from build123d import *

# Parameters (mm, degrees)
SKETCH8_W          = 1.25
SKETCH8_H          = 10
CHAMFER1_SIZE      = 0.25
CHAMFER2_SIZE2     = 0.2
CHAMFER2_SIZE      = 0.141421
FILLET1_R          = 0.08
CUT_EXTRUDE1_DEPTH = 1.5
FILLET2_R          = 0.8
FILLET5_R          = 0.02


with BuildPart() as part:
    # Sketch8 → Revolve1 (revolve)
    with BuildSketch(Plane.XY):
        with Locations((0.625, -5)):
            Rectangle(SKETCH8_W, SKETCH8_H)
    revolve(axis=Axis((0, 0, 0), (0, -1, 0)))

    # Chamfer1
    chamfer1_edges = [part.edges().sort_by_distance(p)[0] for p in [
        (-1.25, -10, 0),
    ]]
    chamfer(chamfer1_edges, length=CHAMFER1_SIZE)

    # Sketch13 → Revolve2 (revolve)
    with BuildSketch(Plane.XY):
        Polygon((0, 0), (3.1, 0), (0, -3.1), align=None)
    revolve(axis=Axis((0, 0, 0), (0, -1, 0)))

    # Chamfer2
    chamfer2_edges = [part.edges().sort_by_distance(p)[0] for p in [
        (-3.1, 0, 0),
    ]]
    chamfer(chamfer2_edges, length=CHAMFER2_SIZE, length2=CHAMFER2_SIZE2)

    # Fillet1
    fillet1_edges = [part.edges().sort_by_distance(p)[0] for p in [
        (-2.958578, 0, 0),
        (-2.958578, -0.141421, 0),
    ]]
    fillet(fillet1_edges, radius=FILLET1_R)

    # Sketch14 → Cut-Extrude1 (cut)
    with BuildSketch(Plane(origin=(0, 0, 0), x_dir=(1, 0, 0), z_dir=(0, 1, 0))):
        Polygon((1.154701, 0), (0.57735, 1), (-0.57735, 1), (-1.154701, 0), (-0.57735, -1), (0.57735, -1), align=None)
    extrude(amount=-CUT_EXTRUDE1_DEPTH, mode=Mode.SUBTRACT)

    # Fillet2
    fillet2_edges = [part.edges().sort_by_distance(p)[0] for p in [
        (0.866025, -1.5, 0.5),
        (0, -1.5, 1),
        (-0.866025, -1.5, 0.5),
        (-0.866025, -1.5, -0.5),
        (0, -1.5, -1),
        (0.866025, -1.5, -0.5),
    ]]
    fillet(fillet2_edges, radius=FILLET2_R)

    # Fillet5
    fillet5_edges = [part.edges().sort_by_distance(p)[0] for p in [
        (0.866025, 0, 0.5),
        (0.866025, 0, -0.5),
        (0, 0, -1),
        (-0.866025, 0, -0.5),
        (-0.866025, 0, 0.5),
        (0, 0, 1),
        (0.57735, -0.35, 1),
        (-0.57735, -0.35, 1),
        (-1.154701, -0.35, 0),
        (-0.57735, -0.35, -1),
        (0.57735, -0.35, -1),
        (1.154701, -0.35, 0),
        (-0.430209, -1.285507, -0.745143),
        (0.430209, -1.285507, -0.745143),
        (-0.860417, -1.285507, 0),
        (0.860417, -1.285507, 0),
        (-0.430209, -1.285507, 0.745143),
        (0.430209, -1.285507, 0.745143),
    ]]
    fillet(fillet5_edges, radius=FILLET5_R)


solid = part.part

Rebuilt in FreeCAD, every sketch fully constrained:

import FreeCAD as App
import Part
import Sketcher

V = App.Vector


def edges_at(feature, points):
    """Names of the edges that pass closest to the given points."""
    edges = feature.Shape.Edges
    near = lambda p: min(range(len(edges)), key=lambda i: edges[i].distToShape(Part.Vertex(*p))[0])
    return sorted({f"Edge{near(p) + 1}" for p in points})

doc = App.newDocument("Part")
body = doc.addObject("PartDesign::Body", "Body")

sketch1 = doc.addObject("Sketcher::SketchObject", "Sketch")
body.addObject(sketch1)
sketch1.AttachmentSupport = (doc.XY_Plane, [""])
sketch1.MapMode = "FlatFace"
sketch1.addGeometry([
    Part.LineSegment(V(0, 0, 0), V(0, -10, 0)),
    Part.LineSegment(V(0, -10, 0), V(1.2, -10, 0)),
    Part.LineSegment(V(1.2, -10, 0), V(1.2, 0, 0)),
    Part.LineSegment(V(1.2, 0, 0), V(0, 0, 0)),
], False)
sketch1.addConstraint([
    Sketcher.Constraint("Coincident", 0, 2, 1, 1),
    Sketcher.Constraint("Coincident", 1, 2, 2, 1),
    Sketcher.Constraint("Coincident", 2, 2, 3, 1),
    Sketcher.Constraint("Coincident", 3, 2, 0, 1),
    Sketcher.Constraint("Vertical", 0),
    Sketcher.Constraint("Horizontal", 1),
    Sketcher.Constraint("Vertical", 2),
    Sketcher.Constraint("Horizontal", 3),
    Sketcher.Constraint("Coincident", 3, 2, -1, 1),
    Sketcher.Constraint("DistanceY", 0, 2, 0, 1, 10.0),
    Sketcher.Constraint("DistanceX", 1, 1, 1, 2, 1.25),
])
revolution = doc.addObject("PartDesign::Revolution", "Revolution")
body.addObject(revolution)
revolution.Profile = sketch1
revolution.ReferenceAxis = (sketch1, ["V_Axis"])
revolution.Angle = 360
doc.recompute()

chamfer = doc.addObject("PartDesign::Chamfer", "Chamfer")
body.addObject(chamfer)
chamfer.Base = (revolution, edges_at(revolution, [(-1.25, -10, 0)]))
chamfer.Size = 0.25

sketch2 = doc.addObject("Sketcher::SketchObject", "Sketch001")
body.addObject(sketch2)
sketch2.AttachmentSupport = (doc.XY_Plane, [""])
sketch2.MapMode = "FlatFace"
sketch2.addGeometry([
    Part.LineSegment(V(3.1, 0, 0), V(0, 0, 0)),
    Part.LineSegment(V(0, 0, 0), V(0, -3.1, 0)),
    Part.LineSegment(V(0, -3.1, 0), V(3.1, 0, 0)),
], False)
sketch2.addConstraint([
    Sketcher.Constraint("Coincident", 0, 2, 1, 1),
    Sketcher.Constraint("Coincident", 1, 2, 2, 1),
    Sketcher.Constraint("Coincident", 2, 2, 0, 1),
    Sketcher.Constraint("Horizontal", 0),
    Sketcher.Constraint("Vertical", 1),
    Sketcher.Constraint("Coincident", 0, 2, -1, 1),
    Sketcher.Constraint("Equal", 0, 1),
    Sketcher.Constraint("DistanceX", 0, 2, 0, 1, 3.1),
])
revolution2 = doc.addObject("PartDesign::Revolution", "Revolution001")
body.addObject(revolution2)
revolution2.Profile = sketch2
revolution2.ReferenceAxis = (sketch2, ["V_Axis"])
revolution2.Angle = 360
doc.recompute()

chamfer2 = doc.addObject("PartDesign::Chamfer", "Chamfer001")
body.addObject(chamfer2)
chamfer2.Base = (revolution2, edges_at(revolution2, [(-3.1, 0, 0)]))
chamfer2.ChamferType = "Two distances"
chamfer2.Size = 0.141421
chamfer2.Size2 = 0.2
chamfer2.FlipDirection = True
doc.recompute()

fillet = doc.addObject("PartDesign::Fillet", "Fillet")
body.addObject(fillet)
fillet.Base = (chamfer2, edges_at(chamfer2, [(-2.959, 0, 0), (-2.959, -0.141, 0)]))
fillet.Radius = 0.08

sketch3 = doc.addObject("Sketcher::SketchObject", "Sketch002")
body.addObject(sketch3)
sketch3.AttachmentSupport = (doc.XZ_Plane, [""])
sketch3.MapMode = "FlatFace"
sketch3.addGeometry([
    Part.LineSegment(V(1.2, 0, 0), V(0.6, -1, 0)),
    Part.LineSegment(V(0.6, -1, 0), V(-0.6, -1, 0)),
    Part.LineSegment(V(-0.6, -1, 0), V(-1.2, 0, 0)),
    Part.LineSegment(V(-1.2, 0, 0), V(-0.6, 1, 0)),
    Part.LineSegment(V(-0.6, 1, 0), V(0.6, 1, 0)),
    Part.LineSegment(V(0.6, 1, 0), V(1.2, 0, 0)),
], False)
sketch3.addConstraint([
    Sketcher.Constraint("Coincident", 0, 2, 1, 1),
    Sketcher.Constraint("Coincident", 1, 2, 2, 1),
    Sketcher.Constraint("Coincident", 2, 2, 3, 1),
    Sketcher.Constraint("Coincident", 3, 2, 4, 1),
    Sketcher.Constraint("Coincident", 4, 2, 5, 1),
    Sketcher.Constraint("Coincident", 5, 2, 0, 1),
    Sketcher.Constraint("Horizontal", 1),
    Sketcher.Constraint("Horizontal", 4),
    Sketcher.Constraint("Symmetric", 0, 2, 3, 2, -1, 1),
    Sketcher.Constraint("Symmetric", 2, 2, 5, 2, -1, 1),
    Sketcher.Constraint("PointOnObject", 2, 2, -1),
    Sketcher.Constraint("Parallel", 2, 5),
    Sketcher.Constraint("Vertical", 1, 2, 3, 2),
    Sketcher.Constraint("DistanceY", 0, 2, -1, 1, 1.0),
    Sketcher.Constraint("DistanceX", 1, 2, 1, 1, 1.1547),
    Sketcher.Constraint("Distance", 0, 1.154701),
])
pocket1 = doc.addObject("PartDesign::Pocket", "Pocket")
body.addObject(pocket1)
pocket1.Profile = sketch3
pocket1.Length = 1.5
pocket1.Reversed = True
doc.recompute()

fillet2 = doc.addObject("PartDesign::Fillet", "Fillet001")
body.addObject(fillet2)
fillet2.Base = (pocket1, edges_at(pocket1, [
    (0.866, -1.5, 0.5),
    (0, -1.5, 1),
    (-0.866, -1.5, 0.5),
    (-0.866, -1.5, -0.5),
    (0, -1.5, -1),
    (0.866, -1.5, -0.5),
]))
fillet2.Radius = 0.8
doc.recompute()

fillet3 = doc.addObject("PartDesign::Fillet", "Fillet002")
body.addObject(fillet3)
fillet3.Base = (fillet2, edges_at(fillet2, [
    (0.866, 0, 0.5),
    (0.866, 0, -0.5),
    (0, 0, -1),
    (-0.866, 0, -0.5),
    (-0.866, 0, 0.5),
    (0, 0, 1),
    (0.577, -0.35, 1),
    (-0.577, -0.35, 1),
    (-1.155, -0.35, 0),
    (-0.577, -0.35, -1),
    (0.577, -0.35, -1),
    (1.155, -0.35, 0),
    (-0.43, -1.286, -0.745),
    (0.43, -1.286, -0.745),
    (-0.86, -1.286, 0),
    (0.86, -1.286, 0),
    (-0.43, -1.286, 0.745),
    (0.43, -1.286, 0.745),
]))
fillet3.Radius = 0.02

doc.recompute()
